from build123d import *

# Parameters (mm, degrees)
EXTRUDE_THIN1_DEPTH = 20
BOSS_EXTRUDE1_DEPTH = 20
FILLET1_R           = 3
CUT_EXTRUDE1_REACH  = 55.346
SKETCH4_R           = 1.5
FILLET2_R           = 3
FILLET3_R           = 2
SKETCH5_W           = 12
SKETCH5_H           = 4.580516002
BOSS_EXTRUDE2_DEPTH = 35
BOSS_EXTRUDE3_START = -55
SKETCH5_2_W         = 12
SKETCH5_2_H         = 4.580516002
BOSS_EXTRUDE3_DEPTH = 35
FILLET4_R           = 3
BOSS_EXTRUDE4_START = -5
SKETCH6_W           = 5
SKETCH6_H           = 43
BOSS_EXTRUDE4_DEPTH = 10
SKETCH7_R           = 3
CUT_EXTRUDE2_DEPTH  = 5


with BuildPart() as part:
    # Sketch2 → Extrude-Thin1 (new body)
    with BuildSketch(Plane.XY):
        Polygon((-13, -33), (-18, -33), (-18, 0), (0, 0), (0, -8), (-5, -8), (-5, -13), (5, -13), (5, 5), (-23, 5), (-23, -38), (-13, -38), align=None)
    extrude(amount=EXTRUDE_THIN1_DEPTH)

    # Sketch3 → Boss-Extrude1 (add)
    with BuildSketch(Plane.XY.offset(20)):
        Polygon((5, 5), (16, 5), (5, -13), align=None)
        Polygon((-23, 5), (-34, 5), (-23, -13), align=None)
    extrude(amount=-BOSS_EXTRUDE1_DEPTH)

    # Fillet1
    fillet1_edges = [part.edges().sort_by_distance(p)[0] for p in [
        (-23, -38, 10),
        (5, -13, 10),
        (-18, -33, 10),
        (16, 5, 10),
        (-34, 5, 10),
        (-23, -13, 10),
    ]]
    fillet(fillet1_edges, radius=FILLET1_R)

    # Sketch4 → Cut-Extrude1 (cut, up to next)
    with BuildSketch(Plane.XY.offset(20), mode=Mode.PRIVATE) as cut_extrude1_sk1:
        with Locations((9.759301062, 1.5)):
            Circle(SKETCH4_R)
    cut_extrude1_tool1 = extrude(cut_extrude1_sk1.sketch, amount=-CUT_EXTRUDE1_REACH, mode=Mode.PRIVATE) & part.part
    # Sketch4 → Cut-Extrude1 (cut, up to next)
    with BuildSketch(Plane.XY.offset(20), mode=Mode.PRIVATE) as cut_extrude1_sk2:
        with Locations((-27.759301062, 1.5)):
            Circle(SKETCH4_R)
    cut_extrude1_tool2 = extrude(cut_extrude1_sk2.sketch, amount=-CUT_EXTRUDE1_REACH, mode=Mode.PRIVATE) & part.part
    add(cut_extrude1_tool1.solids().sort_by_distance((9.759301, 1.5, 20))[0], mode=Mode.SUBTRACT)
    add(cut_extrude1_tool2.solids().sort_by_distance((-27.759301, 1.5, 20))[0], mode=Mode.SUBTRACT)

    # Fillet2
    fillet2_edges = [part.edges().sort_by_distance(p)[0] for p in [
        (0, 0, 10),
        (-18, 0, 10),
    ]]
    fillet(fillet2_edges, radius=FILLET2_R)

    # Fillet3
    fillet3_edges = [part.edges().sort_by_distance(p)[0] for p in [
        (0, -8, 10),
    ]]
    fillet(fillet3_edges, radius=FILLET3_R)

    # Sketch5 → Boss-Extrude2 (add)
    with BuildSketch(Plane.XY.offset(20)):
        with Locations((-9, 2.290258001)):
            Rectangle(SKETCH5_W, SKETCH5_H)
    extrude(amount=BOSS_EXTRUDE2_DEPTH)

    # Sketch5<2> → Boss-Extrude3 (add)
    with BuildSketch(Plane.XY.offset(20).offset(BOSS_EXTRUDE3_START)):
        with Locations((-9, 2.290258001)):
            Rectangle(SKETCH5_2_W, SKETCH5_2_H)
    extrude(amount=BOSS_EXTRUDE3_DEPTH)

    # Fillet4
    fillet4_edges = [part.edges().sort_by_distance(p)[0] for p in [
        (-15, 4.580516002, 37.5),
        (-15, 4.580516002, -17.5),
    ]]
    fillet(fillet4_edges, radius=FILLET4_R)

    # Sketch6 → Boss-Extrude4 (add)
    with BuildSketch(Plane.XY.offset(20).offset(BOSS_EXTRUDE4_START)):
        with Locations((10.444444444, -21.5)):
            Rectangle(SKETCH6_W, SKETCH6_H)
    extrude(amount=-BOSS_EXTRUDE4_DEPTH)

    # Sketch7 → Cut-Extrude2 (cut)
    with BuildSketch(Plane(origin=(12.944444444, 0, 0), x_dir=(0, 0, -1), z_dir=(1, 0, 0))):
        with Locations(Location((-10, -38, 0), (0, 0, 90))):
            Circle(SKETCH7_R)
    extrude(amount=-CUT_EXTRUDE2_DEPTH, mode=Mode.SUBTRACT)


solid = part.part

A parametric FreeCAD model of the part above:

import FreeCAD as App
import Part
import Sketcher
Q = App.Units.Quantity


def edges_at(feature, points):
    """Names of the edges that pass closest to the given points."""
    edges = feature.Shape.Edges
    near = lambda p: min(range(len(edges)), key=lambda i: edges[i].distToShape(Part.Vertex(*p))[0])
    return sorted({f"Edge{near(p) + 1}" for p in points})

doc = App.newDocument("Part")
params = doc.addObject("Spreadsheet::Sheet", "Params")
for row, (alias, value) in enumerate([
    ("sketch1_width", "5 mm"),
    ("sketch1_width2", "18 mm"),
    ("sketch1_width3", "10 mm"),
    ("sketch1_height", "33 mm"),
    ("sketch1_height2", "8 mm"),
    ("pad1_length", "20 mm"),
    ("sketch2_width", "11 mm"),
    ("sketch2_height", "18 mm"),
    ("pad2_length", "20 mm"),
    ("fillet_radius", "3 mm"),
    ("sketch3_diameter", "3 mm"),
    ("sketch4_diameter", "3 mm"),
    ("fillet2_radius", "3 mm"),
    ("fillet3_radius", "2 mm"),
    ("sketch5_width", "12 mm"),
    ("pad3_length", "35 mm"),
    ("sketch6_width", "12 mm"),
    ("pad4_length", "35 mm"),
    ("fillet4_radius", "3 mm"),
    ("sketch7_width", "5 mm"),
    ("sketch7_height", "43 mm"),
    ("pad5_length", "10 mm"),
    ("sketch8_diameter", "6 mm"),
    ("pocket3_length", "5 mm"),
], start=1):
    params.set(f"A{row}", alias)
    params.set(f"B{row}", "=" + value)
    params.setAlias(f"B{row}", alias)

body = doc.addObject("PartDesign::Body", "Body")

# Sketch on XY plane
sketch1 = body.newObject("Sketcher::SketchObject", "Sketch")
sketch1.AttachmentSupport = (doc.getObject("XY_Plane"), [""])
sketch1.MapMode = "FlatFace"
sketch1.addGeometry(Part.LineSegment(App.Vector(-13, -33, 0), App.Vector(-18, -33, 0)), False)
sketch1.addGeometry(Part.LineSegment(App.Vector(-18, -33, 0), App.Vector(-18, 0, 0)), False)
sketch1.addGeometry(Part.LineSegment(App.Vector(-18, 0, 0), App.Vector(0, 0, 0)), False)
sketch1.addGeometry(Part.LineSegment(App.Vector(0, 0, 0), App.Vector(0, -8, 0)), False)
sketch1.addGeometry(Part.LineSegment(App.Vector(0, -8, 0), App.Vector(-5, -8, 0)), False)
sketch1.addGeometry(Part.LineSegment(App.Vector(-5, -8, 0), App.Vector(-5, -13, 0)), False)
sketch1.addGeometry(Part.LineSegment(App.Vector(-5, -13, 0), App.Vector(5, -13, 0)), False)
sketch1.addGeometry(Part.LineSegment(App.Vector(5, -13, 0), App.Vector(5, 5, 0)), False)
sketch1.addGeometry(Part.LineSegment(App.Vector(5, 5, 0), App.Vector(-23, 5, 0)), False)
sketch1.addGeometry(Part.LineSegment(App.Vector(-23, 5, 0), App.Vector(-23, -38, 0)), False)
sketch1.addGeometry(Part.LineSegment(App.Vector(-23, -38, 0), App.Vector(-13, -38, 0)), False)
sketch1.addGeometry(Part.LineSegment(App.Vector(-13, -38, 0), App.Vector(-13, -33, 0)), False)
sketch1.addConstraint(Sketcher.Constraint("Coincident", 0, 2, 1, 1))
sketch1.addConstraint(Sketcher.Constraint("Coincident", 1, 2, 2, 1))
sketch1.addConstraint(Sketcher.Constraint("Coincident", 2, 2, 3, 1))
sketch1.addConstraint(Sketcher.Constraint("Coincident", 3, 2, 4, 1))
sketch1.addConstraint(Sketcher.Constraint("Coincident", 4, 2, 5, 1))
sketch1.addConstraint(Sketcher.Constraint("Coincident", 5, 2, 6, 1))
sketch1.addConstraint(Sketcher.Constraint("Coincident", 6, 2, 7, 1))
sketch1.addConstraint(Sketcher.Constraint("Coincident", 7, 2, 8, 1))
sketch1.addConstraint(Sketcher.Constraint("Coincident", 8, 2, 9, 1))
sketch1.addConstraint(Sketcher.Constraint("Coincident", 9, 2, 10, 1))
sketch1.addConstraint(Sketcher.Constraint("Coincident", 10, 2, 11, 1))
sketch1.addConstraint(Sketcher.Constraint("Coincident", 11, 2, 0, 1))
sketch1.addConstraint(Sketcher.Constraint("Horizontal", 0))
sketch1.addConstraint(Sketcher.Constraint("Vertical", 1))
sketch1.addConstraint(Sketcher.Constraint("Horizontal", 2))
sketch1.addConstraint(Sketcher.Constraint("Vertical", 3))
sketch1.addConstraint(Sketcher.Constraint("Horizontal", 4))
sketch1.addConstraint(Sketcher.Constraint("Vertical", 5))
sketch1.addConstraint(Sketcher.Constraint("Horizontal", 6))
sketch1.addConstraint(Sketcher.Constraint("Vertical", 7))
sketch1.addConstraint(Sketcher.Constraint("Horizontal", 8))
sketch1.addConstraint(Sketcher.Constraint("Vertical", 9))
sketch1.addConstraint(Sketcher.Constraint("Horizontal", 10))
sketch1.addConstraint(Sketcher.Constraint("Vertical", 11))
sketch1.addConstraint(Sketcher.Constraint("Coincident", 2, 2, -1, 1))
sketch1.addConstraint(Sketcher.Constraint("Equal", 0, 4))
sketch1.addConstraint(Sketcher.Constraint("Equal", 6, 10))
sketch1.addConstraint(Sketcher.Constraint("Equal", 4, 5))
sketch1.addConstraint(Sketcher.Constraint("Equal", 2, 7))
sketch1.addConstraint(Sketcher.Constraint("Equal", 5, 11))
sketch1.addConstraint(Sketcher.Constraint("DistanceX", 0, 2, 0, 1, Q("5 mm")))
sketch1.addConstraint(Sketcher.Constraint("DistanceX", 2, 1, 2, 2, Q("18 mm")))
sketch1.addConstraint(Sketcher.Constraint("DistanceX", 6, 1, 6, 2, Q("10 mm")))
sketch1.addConstraint(Sketcher.Constraint("DistanceY", 1, 1, 1, 2, Q("33 mm")))
sketch1.addConstraint(Sketcher.Constraint("DistanceY", 3, 2, 3, 1, Q("8 mm")))
sketch1.setExpression("Constraints[30]", "Params.sketch1_width")
sketch1.setExpression("Constraints[31]", "Params.sketch1_width2")
sketch1.setExpression("Constraints[32]", "Params.sketch1_width3")
sketch1.setExpression("Constraints[33]", "Params.sketch1_height")
sketch1.setExpression("Constraints[34]", "Params.sketch1_height2")
pad1 = body.newObject("PartDesign::Pad", "Pad")
pad1.Profile = sketch1
pad1.setExpression("Length", "Params.pad1_length")

# Sketch on XY plane
sketch2 = body.newObject("Sketcher::SketchObject", "Sketch001")
sketch2.AttachmentSupport = (doc.getObject("XY_Plane"), [""])
sketch2.MapMode = "FlatFace"
sketch2.AttachmentOffset = App.Placement(App.Vector(0, 0, 20), App.Rotation())
sketch2.addGeometry(Part.LineSegment(App.Vector(16, 5, 0), App.Vector(5, 5, 0)), False)
sketch2.addGeometry(Part.LineSegment(App.Vector(5, 5, 0), App.Vector(5, -13, 0)), False)
sketch2.addGeometry(Part.LineSegment(App.Vector(5, -13, 0), App.Vector(16, 5, 0)), False)
sketch2.addGeometry(Part.LineSegment(App.Vector(-23, 5, 0), App.Vector(-34, 5, 0)), False)
sketch2.addGeometry(Part.LineSegment(App.Vector(-34, 5, 0), App.Vector(-23, -13, 0)), False)
sketch2.addGeometry(Part.LineSegment(App.Vector(-23, -13, 0), App.Vector(-23, 5, 0)), False)
sketch2.addConstraint(Sketcher.Constraint("Coincident", 0, 2, 1, 1))
sketch2.addConstraint(Sketcher.Constraint("Coincident", 1, 2, 2, 1))
sketch2.addConstraint(Sketcher.Constraint("Coincident", 2, 2, 0, 1))
sketch2.addConstraint(Sketcher.Constraint("Coincident", 3, 2, 4, 1))
sketch2.addConstraint(Sketcher.Constraint("Coincident", 4, 2, 5, 1))
sketch2.addConstraint(Sketcher.Constraint("Coincident", 5, 2, 3, 1))
sketch2.addConstraint(Sketcher.Constraint("Horizontal", 0))
sketch2.addConstraint(Sketcher.Constraint("Vertical", 1))
sketch2.addConstraint(Sketcher.Constraint("Horizontal", 3))
sketch2.addConstraint(Sketcher.Constraint("Vertical", 5))
sketch2.addConstraint(Sketcher.Constraint("Horizontal", 2, 2, 3, 2))
sketch2.addConstraint(Sketcher.Constraint("Horizontal", 1, 2, 4, 2))
sketch2.addConstraint(Sketcher.Constraint("Equal", 0, 3))
sketch2.addConstraint(Sketcher.Constraint("DistanceX", 0, 2, 0, 1, Q("11 mm")))
sketch2.addConstraint(Sketcher.Constraint("DistanceY", 1, 2, 1, 1, Q("18 mm")))
sketch2.addConstraint(Sketcher.Constraint("DistanceX", -1, 1, 0, 2, Q("5 mm")))
sketch2.addConstraint(Sketcher.Constraint("DistanceY", -1, 1, 0, 2, Q("5 mm")))
sketch2.addConstraint(Sketcher.Constraint("DistanceX", 3, 2, -1, 1, Q("34 mm")))
sketch2.setExpression("Constraints[13]", "Params.sketch2_width")
sketch2.setExpression("Constraints[14]", "Params.sketch2_height")
pad2 = body.newObject("PartDesign::Pad", "Pad001")
pad2.Profile = sketch2
pad2.setExpression("Length", "Params.pad2_length")
pad2.Reversed = True
doc.recompute()

fillet = body.newObject("PartDesign::Fillet", "Fillet")
fillet.Base = (pad2, edges_at(pad2, [
    (-23, -38, 10),
    (5, -13, 10),
    (-18, -33, 10),
    (16, 5, 10),
    (-34, 5, 10),
    (-23, -13, 10),
]))
fillet.setExpression("Radius", "Params.fillet_radius")

# Sketch on XY plane
sketch3 = body.newObject("Sketcher::SketchObject", "Sketch002")
sketch3.AttachmentSupport = (doc.getObject("XY_Plane"), [""])
sketch3.MapMode = "FlatFace"
sketch3.AttachmentOffset = App.Placement(App.Vector(0, 0, 20), App.Rotation())
sketch3.addGeometry(Part.Circle(App.Vector(9.759301, 1.5, 0), App.Vector(0, 0, 1), 1.5), False)
sketch3.addConstraint(Sketcher.Constraint("Diameter", 0, Q("3 mm")))
sketch3.addConstraint(Sketcher.Constraint("DistanceY", -1, 1, 0, 3, Q("1.5 mm")))
sketch3.addConstraint(Sketcher.Constraint("DistanceX", -1, 1, 0, 3, Q("9.759301 mm")))
sketch3.setExpression("Constraints[0]", "Params.sketch3_diameter")
pocket1 = body.newObject("PartDesign::Pocket", "Pocket")
pocket1.Profile = sketch3
pocket1.Type = "UpToFirst"

# Sketch on XY plane
sketch4 = body.newObject("Sketcher::SketchObject", "Sketch003")
sketch4.AttachmentSupport = (doc.getObject("XY_Plane"), [""])
sketch4.MapMode = "FlatFace"
sketch4.AttachmentOffset = App.Placement(App.Vector(0, 0, 20), App.Rotation())
sketch4.addGeometry(Part.Circle(App.Vector(-27.759301, 1.5, 0), App.Vector(0, 0, 1), 1.5), False)
sketch4.addConstraint(Sketcher.Constraint("Diameter", 0, Q("3 mm")))
sketch4.addConstraint(Sketcher.Constraint("DistanceY", -1, 1, 0, 3, Q("1.5 mm")))
sketch4.addConstraint(Sketcher.Constraint("DistanceX", 0, 3, -1, 1, Q("27.759301 mm")))
sketch4.setExpression("Constraints[0]", "Params.sketch4_diameter")
pocket2 = body.newObject("PartDesign::Pocket", "Pocket001")
pocket2.Profile = sketch4
pocket2.Type = "UpToFirst"
doc.recompute()

fillet2 = body.newObject("PartDesign::Fillet", "Fillet001")
fillet2.Base = (pocket2, edges_at(pocket2, [(0, 0, 10), (-18, 0, 10)]))
fillet2.setExpression("Radius", "Params.fillet2_radius")
doc.recompute()

fillet3 = body.newObject("PartDesign::Fillet", "Fillet002")
fillet3.Base = (fillet2, edges_at(fillet2, [(0, -8, 10)]))
fillet3.setExpression("Radius", "Params.fillet3_radius")

# Sketch on XY plane
sketch5 = body.newObject("Sketcher::SketchObject", "Sketch004")
sketch5.AttachmentSupport = (doc.getObject("XY_Plane"), [""])
sketch5.MapMode = "FlatFace"
sketch5.AttachmentOffset = App.Placement(App.Vector(0, 0, 20), App.Rotation())
sketch5.addGeometry(Part.LineSegment(App.Vector(-15, 4.580516, 0), App.Vector(-15, 0, 0)), False)
sketch5.addGeometry(Part.LineSegment(App.Vector(-15, 0, 0), App.Vector(-3, 0, 0)), False)
sketch5.addGeometry(Part.LineSegment(App.Vector(-3, 0, 0), App.Vector(-3, 4.580516, 0)), False)
sketch5.addGeometry(Part.LineSegment(App.Vector(-3, 4.580516, 0), App.Vector(-15, 4.580516, 0)), False)
sketch5.addConstraint(Sketcher.Constraint("Coincident", 0, 2, 1, 1))
sketch5.addConstraint(Sketcher.Constraint("Coincident", 1, 2, 2, 1))
sketch5.addConstraint(Sketcher.Constraint("Coincident", 2, 2, 3, 1))
sketch5.addConstraint(Sketcher.Constraint("Coincident", 3, 2, 0, 1))
sketch5.addConstraint(Sketcher.Constraint("Vertical", 0))
sketch5.addConstraint(Sketcher.Constraint("Horizontal", 1))
sketch5.addConstraint(Sketcher.Constraint("Vertical", 2))
sketch5.addConstraint(Sketcher.Constraint("Horizontal", 3))
sketch5.addConstraint(Sketcher.Constraint("PointOnObject", 0, 2, -1))
sketch5.addConstraint(Sketcher.Constraint("DistanceX", 1, 1, 1, 2, Q("12 mm")))
sketch5.addConstraint(Sketcher.Constraint("DistanceX", 0, 2, -1, 1, Q("15 mm")))
sketch5.addConstraint(Sketcher.Constraint("DistanceY", 0, 2, 0, 1, Q("4.580516 mm")))
sketch5.setExpression("Constraints[9]", "Params.sketch5_width")
pad3 = body.newObject("PartDesign::Pad", "Pad002")
pad3.Profile = sketch5
pad3.setExpression("Length", "Params.pad3_length")

# Sketch on XY plane
sketch6 = body.newObject("Sketcher::SketchObject", "Sketch005")
sketch6.AttachmentSupport = (doc.getObject("XY_Plane"), [""])
sketch6.MapMode = "FlatFace"
sketch6.AttachmentOffset = App.Placement(App.Vector(0, 0, -35), App.Rotation())
sketch6.addGeometry(Part.LineSegment(App.Vector(-15, 4.580516, 0), App.Vector(-15, 0, 0)), False)
sketch6.addGeometry(Part.LineSegment(App.Vector(-15, 0, 0), App.Vector(-3, 0, 0)), False)
sketch6.addGeometry(Part.LineSegment(App.Vector(-3, 0, 0), App.Vector(-3, 4.580516, 0)), False)
sketch6.addGeometry(Part.LineSegment(App.Vector(-3, 4.580516, 0), App.Vector(-15, 4.580516, 0)), False)
sketch6.addConstraint(Sketcher.Constraint("Coincident", 0, 2, 1, 1))
sketch6.addConstraint(Sketcher.Constraint("Coincident", 1, 2, 2, 1))
sketch6.addConstraint(Sketcher.Constraint("Coincident", 2, 2, 3, 1))
sketch6.addConstraint(Sketcher.Constraint("Coincident", 3, 2, 0, 1))
sketch6.addConstraint(Sketcher.Constraint("Vertical", 0))
sketch6.addConstraint(Sketcher.Constraint("Horizontal", 1))
sketch6.addConstraint(Sketcher.Constraint("Vertical", 2))
sketch6.addConstraint(Sketcher.Constraint("Horizontal", 3))
sketch6.addConstraint(Sketcher.Constraint("PointOnObject", 0, 2, -1))
sketch6.addConstraint(Sketcher.Constraint("DistanceX", 1, 1, 1, 2, Q("12 mm")))
sketch6.addConstraint(Sketcher.Constraint("DistanceX", 0, 2, -1, 1, Q("15 mm")))
sketch6.addConstraint(Sketcher.Constraint("DistanceY", 0, 2, 0, 1, Q("4.580516 mm")))
sketch6.setExpression("Constraints[9]", "Params.sketch6_width")
pad4 = body.newObject("PartDesign::Pad", "Pad003")
pad4.Profile = sketch6
pad4.setExpression("Length", "Params.pad4_length")
doc.recompute()

fillet4 = body.newObject("PartDesign::Fillet", "Fillet003")
fillet4.Base = (pad4, edges_at(pad4, [(-15, 4.581, 37.5), (-15, 4.581, -17.5)]))
fillet4.setExpression("Radius", "Params.fillet4_radius")

# Sketch on XY plane
sketch7 = body.newObject("Sketcher::SketchObject", "Sketch006")
sketch7.AttachmentSupport = (doc.getObject("XY_Plane"), [""])
sketch7.MapMode = "FlatFace"
sketch7.AttachmentOffset = App.Placement(App.Vector(0, 0, 15), App.Rotation())
sketch7.addGeometry(Part.LineSegment(App.Vector(7.944444, 0, 0), App.Vector(7.944444, -43, 0)), False)
sketch7.addGeometry(Part.LineSegment(App.Vector(7.944444, -43, 0), App.Vector(12.944444, -43, 0)), False)
sketch7.addGeometry(Part.LineSegment(App.Vector(12.944444, -43, 0), App.Vector(12.944444, 0, 0)), False)
sketch7.addGeometry(Part.LineSegment(App.Vector(12.944444, 0, 0), App.Vector(7.944444, 0, 0)), False)
sketch7.addConstraint(Sketcher.Constraint("Coincident", 0, 2, 1, 1))
sketch7.addConstraint(Sketcher.Constraint("Coincident", 1, 2, 2, 1))
sketch7.addConstraint(Sketcher.Constraint("Coincident", 2, 2, 3, 1))
sketch7.addConstraint(Sketcher.Constraint("Coincident", 3, 2, 0, 1))
sketch7.addConstraint(Sketcher.Constraint("Vertical", 0))
sketch7.addConstraint(Sketcher.Constraint("Horizontal", 1))
sketch7.addConstraint(Sketcher.Constraint("Vertical", 2))
sketch7.addConstraint(Sketcher.Constraint("Horizontal", 3))
sketch7.addConstraint(Sketcher.Constraint("PointOnObject", 2, 2, -1))
sketch7.addConstraint(Sketcher.Constraint("DistanceX", 1, 1, 1, 2, Q("5 mm")))
sketch7.addConstraint(Sketcher.Constraint("DistanceY", 0, 2, 0, 1, Q("43 mm")))
sketch7.addConstraint(Sketcher.Constraint("DistanceX", -1, 1, 0, 2, Q("7.944444 mm")))
sketch7.setExpression("Constraints[9]", "Params.sketch7_width")
sketch7.setExpression("Constraints[10]", "Params.sketch7_height")
pad5 = body.newObject("PartDesign::Pad", "Pad004")
pad5.Profile = sketch7
pad5.setExpression("Length", "Params.pad5_length")
pad5.Reversed = True

# Sketch on YZ plane
sketch8 = body.newObject("Sketcher::SketchObject", "Sketch007")
sketch8.AttachmentSupport = (doc.getObject("YZ_Plane"), [""])
sketch8.MapMode = "FlatFace"
sketch8.AttachmentOffset = App.Placement(App.Vector(0, 0, 12.944444), App.Rotation())
sketch8.addGeometry(Part.Circle(App.Vector(-38, 10, 0), App.Vector(0, 0, 1), 3), False)
sketch8.addConstraint(Sketcher.Constraint("Diameter", 0, Q("6 mm")))
sketch8.addConstraint(Sketcher.Constraint("DistanceX", 0, 3, -1, 1, Q("38 mm")))
sketch8.addConstraint(Sketcher.Constraint("DistanceY", -1, 1, 0, 3, Q("10 mm")))
sketch8.setExpression("Constraints[0]", "Params.sketch8_diameter")
pocket3 = body.newObject("PartDesign::Pocket", "Pocket002")
pocket3.Profile = sketch8
pocket3.setExpression("Length", "Params.pocket3_length")

doc.recompute()
